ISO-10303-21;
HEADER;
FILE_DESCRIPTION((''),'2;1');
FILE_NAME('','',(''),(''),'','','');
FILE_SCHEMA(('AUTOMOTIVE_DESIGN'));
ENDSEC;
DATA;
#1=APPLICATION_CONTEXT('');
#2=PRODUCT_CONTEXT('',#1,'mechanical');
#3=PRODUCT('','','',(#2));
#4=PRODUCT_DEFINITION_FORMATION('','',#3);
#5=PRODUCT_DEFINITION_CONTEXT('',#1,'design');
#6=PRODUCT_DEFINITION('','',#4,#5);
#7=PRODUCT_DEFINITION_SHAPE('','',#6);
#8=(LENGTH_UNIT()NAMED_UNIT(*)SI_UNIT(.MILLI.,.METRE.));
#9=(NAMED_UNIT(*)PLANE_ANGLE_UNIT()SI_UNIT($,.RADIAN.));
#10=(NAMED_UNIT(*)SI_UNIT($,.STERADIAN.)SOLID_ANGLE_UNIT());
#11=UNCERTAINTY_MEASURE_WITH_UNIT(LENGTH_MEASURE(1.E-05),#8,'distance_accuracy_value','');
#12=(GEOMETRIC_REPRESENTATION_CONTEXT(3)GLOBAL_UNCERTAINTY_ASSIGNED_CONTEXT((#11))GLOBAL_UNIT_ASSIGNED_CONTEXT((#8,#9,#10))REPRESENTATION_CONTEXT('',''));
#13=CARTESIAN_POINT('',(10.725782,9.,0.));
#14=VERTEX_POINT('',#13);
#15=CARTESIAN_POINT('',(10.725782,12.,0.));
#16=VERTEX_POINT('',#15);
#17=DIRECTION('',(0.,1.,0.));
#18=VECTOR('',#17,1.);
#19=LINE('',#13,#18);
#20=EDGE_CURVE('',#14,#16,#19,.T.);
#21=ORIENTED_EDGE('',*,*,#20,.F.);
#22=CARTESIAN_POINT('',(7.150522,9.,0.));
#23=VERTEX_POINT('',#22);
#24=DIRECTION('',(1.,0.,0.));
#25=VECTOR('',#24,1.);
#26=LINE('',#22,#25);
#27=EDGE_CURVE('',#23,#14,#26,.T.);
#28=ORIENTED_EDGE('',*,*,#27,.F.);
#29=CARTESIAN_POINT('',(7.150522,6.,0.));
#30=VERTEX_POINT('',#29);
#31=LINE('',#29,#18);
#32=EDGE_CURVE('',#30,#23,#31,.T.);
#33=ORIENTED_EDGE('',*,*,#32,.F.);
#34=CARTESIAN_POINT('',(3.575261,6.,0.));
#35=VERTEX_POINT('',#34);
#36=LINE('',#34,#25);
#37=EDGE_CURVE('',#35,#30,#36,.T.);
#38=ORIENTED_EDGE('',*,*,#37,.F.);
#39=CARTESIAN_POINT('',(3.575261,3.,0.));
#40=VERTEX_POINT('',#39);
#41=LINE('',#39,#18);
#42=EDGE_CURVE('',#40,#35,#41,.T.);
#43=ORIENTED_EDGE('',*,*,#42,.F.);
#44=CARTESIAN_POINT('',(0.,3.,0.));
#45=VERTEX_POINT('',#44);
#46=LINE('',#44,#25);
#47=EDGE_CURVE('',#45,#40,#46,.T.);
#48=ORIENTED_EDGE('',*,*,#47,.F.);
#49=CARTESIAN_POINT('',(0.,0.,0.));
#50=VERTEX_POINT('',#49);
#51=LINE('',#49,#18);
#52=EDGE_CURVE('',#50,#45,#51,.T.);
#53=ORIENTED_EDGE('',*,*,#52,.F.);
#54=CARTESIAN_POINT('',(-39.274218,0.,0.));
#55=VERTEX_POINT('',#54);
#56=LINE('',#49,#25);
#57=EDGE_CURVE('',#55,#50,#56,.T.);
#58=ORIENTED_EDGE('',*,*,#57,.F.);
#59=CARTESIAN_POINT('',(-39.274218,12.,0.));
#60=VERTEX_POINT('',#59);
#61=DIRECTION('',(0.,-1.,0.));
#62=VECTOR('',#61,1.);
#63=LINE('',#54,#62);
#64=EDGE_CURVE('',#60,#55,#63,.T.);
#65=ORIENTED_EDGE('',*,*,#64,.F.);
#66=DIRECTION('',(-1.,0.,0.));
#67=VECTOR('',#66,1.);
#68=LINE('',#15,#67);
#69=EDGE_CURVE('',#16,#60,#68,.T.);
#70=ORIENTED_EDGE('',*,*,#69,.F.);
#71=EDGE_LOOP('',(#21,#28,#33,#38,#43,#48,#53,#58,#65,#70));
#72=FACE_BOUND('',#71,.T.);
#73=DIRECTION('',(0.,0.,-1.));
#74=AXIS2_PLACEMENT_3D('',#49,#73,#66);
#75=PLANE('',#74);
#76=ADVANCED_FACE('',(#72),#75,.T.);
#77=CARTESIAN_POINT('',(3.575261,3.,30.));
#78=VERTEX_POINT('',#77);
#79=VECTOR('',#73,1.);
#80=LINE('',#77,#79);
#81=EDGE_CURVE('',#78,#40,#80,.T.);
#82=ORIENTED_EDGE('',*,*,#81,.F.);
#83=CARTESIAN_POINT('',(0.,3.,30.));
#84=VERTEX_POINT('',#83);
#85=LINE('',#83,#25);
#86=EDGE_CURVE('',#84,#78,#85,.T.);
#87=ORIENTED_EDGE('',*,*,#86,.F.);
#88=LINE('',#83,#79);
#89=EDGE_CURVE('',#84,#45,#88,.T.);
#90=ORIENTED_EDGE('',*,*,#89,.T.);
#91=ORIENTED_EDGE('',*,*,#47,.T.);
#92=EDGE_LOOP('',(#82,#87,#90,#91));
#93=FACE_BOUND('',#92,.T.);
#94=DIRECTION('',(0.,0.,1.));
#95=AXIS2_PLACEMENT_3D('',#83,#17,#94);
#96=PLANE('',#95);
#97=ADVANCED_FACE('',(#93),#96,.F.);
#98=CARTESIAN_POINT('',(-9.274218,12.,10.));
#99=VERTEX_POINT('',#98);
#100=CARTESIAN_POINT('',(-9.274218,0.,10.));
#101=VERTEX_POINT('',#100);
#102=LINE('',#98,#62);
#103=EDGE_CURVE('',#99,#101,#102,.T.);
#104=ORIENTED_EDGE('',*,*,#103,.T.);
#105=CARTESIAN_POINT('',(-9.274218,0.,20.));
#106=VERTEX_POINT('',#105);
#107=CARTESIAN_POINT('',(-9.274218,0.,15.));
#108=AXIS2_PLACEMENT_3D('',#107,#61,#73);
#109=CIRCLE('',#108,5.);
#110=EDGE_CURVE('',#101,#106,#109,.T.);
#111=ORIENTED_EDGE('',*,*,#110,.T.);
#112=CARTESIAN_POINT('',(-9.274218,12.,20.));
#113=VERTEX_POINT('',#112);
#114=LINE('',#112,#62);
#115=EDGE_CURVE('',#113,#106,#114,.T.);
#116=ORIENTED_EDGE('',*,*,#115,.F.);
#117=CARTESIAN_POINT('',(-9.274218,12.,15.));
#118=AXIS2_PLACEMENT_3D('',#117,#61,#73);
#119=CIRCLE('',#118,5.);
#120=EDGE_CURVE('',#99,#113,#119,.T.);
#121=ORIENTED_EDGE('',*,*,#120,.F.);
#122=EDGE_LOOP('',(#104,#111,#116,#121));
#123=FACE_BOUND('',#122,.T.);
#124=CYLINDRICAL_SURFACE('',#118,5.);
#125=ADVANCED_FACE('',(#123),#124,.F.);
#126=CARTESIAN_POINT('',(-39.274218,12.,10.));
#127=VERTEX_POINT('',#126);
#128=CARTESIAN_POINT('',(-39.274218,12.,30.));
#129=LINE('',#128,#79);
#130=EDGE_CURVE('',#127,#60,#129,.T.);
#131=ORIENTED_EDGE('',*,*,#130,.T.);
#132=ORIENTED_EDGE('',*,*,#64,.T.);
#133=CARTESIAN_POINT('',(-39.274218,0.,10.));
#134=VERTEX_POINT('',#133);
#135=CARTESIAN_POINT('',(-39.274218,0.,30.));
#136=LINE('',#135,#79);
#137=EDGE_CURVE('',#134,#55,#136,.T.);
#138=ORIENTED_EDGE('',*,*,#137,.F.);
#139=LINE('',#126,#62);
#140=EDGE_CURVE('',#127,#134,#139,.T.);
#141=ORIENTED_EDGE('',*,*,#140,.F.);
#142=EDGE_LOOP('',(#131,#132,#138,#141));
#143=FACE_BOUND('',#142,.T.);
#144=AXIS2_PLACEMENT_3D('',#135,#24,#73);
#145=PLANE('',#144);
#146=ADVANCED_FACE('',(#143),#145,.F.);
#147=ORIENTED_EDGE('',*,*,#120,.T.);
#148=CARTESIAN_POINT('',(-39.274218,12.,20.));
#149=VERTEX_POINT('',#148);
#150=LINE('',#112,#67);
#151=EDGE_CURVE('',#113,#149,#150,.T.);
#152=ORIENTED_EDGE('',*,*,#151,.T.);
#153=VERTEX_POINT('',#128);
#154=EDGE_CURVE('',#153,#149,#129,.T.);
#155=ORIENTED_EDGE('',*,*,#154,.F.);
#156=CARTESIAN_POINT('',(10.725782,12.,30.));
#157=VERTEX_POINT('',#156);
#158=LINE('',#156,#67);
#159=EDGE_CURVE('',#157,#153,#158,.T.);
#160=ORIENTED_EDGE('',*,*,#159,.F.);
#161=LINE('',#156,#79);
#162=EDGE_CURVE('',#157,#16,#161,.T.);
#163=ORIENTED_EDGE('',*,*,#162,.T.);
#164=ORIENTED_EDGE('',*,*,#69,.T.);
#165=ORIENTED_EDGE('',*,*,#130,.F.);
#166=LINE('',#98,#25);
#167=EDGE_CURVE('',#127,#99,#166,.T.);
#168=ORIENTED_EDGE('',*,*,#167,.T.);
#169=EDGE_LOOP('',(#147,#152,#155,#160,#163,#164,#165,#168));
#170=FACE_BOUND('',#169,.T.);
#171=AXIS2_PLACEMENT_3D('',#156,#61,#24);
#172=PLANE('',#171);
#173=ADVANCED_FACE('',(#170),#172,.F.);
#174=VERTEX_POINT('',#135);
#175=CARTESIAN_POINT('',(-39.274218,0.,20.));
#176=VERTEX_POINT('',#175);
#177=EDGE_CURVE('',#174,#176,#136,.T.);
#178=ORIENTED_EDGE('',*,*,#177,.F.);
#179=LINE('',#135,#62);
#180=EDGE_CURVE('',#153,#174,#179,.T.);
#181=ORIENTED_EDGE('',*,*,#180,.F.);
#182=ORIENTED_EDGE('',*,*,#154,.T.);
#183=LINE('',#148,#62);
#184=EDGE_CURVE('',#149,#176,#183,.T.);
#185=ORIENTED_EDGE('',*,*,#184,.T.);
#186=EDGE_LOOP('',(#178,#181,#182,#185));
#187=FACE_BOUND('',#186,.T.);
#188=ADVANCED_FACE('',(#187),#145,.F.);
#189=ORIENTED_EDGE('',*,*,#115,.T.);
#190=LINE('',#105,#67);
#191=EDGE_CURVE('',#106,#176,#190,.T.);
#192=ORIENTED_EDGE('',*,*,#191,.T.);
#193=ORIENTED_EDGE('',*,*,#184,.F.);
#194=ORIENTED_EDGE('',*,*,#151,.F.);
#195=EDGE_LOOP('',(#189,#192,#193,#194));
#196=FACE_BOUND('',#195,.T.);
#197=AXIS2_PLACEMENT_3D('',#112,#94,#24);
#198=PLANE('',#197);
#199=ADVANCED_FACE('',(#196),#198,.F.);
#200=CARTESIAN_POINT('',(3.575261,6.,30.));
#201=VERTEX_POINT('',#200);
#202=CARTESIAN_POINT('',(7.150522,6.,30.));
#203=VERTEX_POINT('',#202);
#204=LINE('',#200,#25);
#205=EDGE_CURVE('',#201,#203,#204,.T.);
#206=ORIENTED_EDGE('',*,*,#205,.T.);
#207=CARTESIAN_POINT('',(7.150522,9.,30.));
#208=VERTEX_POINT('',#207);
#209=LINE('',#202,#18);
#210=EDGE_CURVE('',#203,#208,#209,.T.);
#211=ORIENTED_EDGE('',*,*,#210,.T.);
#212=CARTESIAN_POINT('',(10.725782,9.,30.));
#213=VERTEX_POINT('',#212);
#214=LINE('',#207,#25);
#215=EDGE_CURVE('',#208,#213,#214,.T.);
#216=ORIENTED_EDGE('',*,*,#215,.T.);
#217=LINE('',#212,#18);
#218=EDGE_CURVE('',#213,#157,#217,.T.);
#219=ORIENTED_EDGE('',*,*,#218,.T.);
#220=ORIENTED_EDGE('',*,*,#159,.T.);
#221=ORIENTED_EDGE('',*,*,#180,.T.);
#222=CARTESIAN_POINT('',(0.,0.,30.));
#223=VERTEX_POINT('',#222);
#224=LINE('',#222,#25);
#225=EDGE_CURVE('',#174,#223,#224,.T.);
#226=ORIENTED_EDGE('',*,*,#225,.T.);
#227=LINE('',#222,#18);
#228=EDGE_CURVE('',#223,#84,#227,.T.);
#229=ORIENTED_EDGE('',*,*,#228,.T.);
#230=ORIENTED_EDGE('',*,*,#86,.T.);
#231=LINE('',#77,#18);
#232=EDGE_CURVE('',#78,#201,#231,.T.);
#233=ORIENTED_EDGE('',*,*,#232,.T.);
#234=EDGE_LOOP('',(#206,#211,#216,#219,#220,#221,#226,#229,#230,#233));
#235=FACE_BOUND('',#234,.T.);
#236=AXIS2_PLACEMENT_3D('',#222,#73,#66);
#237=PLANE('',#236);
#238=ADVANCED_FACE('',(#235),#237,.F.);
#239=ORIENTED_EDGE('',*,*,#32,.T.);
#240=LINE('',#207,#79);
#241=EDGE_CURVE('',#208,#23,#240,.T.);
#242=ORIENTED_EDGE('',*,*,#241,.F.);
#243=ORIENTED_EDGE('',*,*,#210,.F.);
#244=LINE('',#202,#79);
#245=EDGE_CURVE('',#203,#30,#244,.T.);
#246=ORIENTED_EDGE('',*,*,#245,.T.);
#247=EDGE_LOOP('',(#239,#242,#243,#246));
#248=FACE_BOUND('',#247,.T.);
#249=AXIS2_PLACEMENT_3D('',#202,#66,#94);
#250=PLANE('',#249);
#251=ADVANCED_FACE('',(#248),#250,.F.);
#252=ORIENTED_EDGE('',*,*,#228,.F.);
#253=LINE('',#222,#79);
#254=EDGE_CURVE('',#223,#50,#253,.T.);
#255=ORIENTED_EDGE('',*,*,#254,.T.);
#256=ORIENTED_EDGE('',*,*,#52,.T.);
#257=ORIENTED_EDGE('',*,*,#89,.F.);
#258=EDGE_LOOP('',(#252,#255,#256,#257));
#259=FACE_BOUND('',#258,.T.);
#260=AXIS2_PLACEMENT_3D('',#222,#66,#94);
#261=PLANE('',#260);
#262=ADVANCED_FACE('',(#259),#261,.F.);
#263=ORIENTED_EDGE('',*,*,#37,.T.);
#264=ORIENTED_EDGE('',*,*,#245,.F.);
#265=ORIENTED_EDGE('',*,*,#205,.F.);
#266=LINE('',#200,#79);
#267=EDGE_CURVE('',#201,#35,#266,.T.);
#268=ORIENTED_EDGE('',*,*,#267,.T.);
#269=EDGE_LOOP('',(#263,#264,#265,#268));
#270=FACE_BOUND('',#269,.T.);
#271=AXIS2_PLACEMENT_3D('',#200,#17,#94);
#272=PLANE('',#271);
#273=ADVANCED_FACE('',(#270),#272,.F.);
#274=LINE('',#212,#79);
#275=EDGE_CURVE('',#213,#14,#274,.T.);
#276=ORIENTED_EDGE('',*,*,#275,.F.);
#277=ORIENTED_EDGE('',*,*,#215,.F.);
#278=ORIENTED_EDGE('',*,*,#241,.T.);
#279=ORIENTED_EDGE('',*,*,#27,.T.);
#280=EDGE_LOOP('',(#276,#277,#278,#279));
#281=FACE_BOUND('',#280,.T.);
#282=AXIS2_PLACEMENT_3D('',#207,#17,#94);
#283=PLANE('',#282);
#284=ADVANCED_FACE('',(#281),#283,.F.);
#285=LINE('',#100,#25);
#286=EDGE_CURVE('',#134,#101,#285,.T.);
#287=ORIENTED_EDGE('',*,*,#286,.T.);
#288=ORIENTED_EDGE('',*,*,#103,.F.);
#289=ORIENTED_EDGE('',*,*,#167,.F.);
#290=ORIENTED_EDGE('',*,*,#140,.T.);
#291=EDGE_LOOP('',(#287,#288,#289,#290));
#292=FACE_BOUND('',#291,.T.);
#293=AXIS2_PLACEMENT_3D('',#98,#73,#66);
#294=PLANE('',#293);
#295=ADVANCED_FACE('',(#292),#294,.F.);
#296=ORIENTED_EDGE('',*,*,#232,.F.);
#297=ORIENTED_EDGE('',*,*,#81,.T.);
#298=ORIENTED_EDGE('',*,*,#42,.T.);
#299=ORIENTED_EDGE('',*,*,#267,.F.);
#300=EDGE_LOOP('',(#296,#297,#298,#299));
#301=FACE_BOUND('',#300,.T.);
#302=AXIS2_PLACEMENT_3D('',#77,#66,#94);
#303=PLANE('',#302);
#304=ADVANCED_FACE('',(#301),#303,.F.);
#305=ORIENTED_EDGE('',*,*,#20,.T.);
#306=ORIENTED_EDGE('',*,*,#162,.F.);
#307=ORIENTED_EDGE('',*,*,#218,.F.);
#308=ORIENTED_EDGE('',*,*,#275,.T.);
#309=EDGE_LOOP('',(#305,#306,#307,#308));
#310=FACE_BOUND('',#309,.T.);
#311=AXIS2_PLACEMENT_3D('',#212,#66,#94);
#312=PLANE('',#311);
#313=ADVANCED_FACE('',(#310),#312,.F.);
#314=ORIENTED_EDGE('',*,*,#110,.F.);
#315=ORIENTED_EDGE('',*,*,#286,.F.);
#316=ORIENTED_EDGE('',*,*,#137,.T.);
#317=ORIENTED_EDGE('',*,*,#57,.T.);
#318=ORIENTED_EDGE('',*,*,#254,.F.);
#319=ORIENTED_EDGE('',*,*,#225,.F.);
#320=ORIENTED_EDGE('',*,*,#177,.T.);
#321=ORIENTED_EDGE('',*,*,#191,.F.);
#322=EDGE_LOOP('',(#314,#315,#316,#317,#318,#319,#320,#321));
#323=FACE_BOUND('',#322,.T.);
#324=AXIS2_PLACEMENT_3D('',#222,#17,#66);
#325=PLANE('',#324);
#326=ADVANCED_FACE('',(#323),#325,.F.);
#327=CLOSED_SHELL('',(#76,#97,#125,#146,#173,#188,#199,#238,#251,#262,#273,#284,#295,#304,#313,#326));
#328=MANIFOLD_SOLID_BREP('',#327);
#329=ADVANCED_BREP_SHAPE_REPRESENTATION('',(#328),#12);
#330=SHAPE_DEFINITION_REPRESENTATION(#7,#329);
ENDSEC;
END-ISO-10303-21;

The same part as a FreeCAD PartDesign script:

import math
import FreeCAD as App
import Part
import Sketcher
from FreeCAD import Vector


def add_polygon(sketch, points):
    """Adds a closed chain of lines whose ends are joined by coincident constraints."""
    first, n = sketch.GeometryCount, len(points)
    for a, b in zip(points, points[1:] + points[:1]):
        sketch.addGeometry(Part.LineSegment(App.Vector(*a, 0), App.Vector(*b, 0)), False)
    for i in range(n):
        sketch.addConstraint(Sketcher.Constraint("Coincident", first + i, 2, first + (i + 1) % n, 1))

doc = App.newDocument("Part")
body = doc.addObject("PartDesign::Body", "Body")

sketch1 = body.newObject("Sketcher::SketchObject", "Sketch")
sketch1.AttachmentSupport = (doc.getObject("XY_Plane"), [""])
sketch1.MapMode = "FlatFace"
add_polygon(sketch1, [(-39.3, 0), (0, 0), (0, 3), (3.6, 3), (3.6, 6), (7.2, 6), (7.2, 9), (10.7, 9), (10.7, 12), (-39.3, 12)])
sketch1.addConstraint(Sketcher.Constraint("Horizontal", 0))
sketch1.addConstraint(Sketcher.Constraint("Vertical", 1))
sketch1.addConstraint(Sketcher.Constraint("Horizontal", 2))
sketch1.addConstraint(Sketcher.Constraint("Vertical", 3))
sketch1.addConstraint(Sketcher.Constraint("Horizontal", 4))
sketch1.addConstraint(Sketcher.Constraint("Vertical", 5))
sketch1.addConstraint(Sketcher.Constraint("Horizontal", 6))
sketch1.addConstraint(Sketcher.Constraint("Vertical", 7))
sketch1.addConstraint(Sketcher.Constraint("Horizontal", 8))
sketch1.addConstraint(Sketcher.Constraint("Vertical", 9))
sketch1.addConstraint(Sketcher.Constraint("Coincident", 0, 2, -1, 1))
sketch1.addConstraint(Sketcher.Constraint("Equal", 2, 4))
sketch1.addConstraint(Sketcher.Constraint("Equal", 4, 6))
sketch1.addConstraint(Sketcher.Constraint("Equal", 1, 3))
sketch1.addConstraint(Sketcher.Constraint("Equal", 3, 5))
sketch1.addConstraint(Sketcher.Constraint("Equal", 5, 7))
sketch1.addConstraint(Sketcher.Constraint("DistanceX", 8, 2, 8, 1, 50.0))
sketch1.addConstraint(Sketcher.Constraint("DistanceY", 1, 1, 1, 2, 3.0))
sketch1.addConstraint(Sketcher.Constraint("DistanceX", 2, 1, 2, 2, 3.575261))
pad1 = body.newObject("PartDesign::Pad", "Pad")
pad1.Profile = sketch1
pad1.Length = 30

sketch2 = body.newObject("Sketcher::SketchObject", "Sketch001")
sketch2.AttachmentSupport = (doc.getObject("XZ_Plane"), [""])
sketch2.MapMode = "FlatFace"
sketch2.addGeometry(Part.LineSegment(Vector(-39, 10, 0), Vector(-9, 10, 0)), False)
sketch2.addGeometry(Part.ArcOfCircle(Part.Circle(Vector(-9, 15, 0), Vector(0, 0, 1), 5), math.radians(-90), math.radians(90)), False)
sketch2.addGeometry(Part.LineSegment(Vector(-9, 20, 0), Vector(-39, 20, 0)), False)
sketch2.addGeometry(Part.LineSegment(Vector(-39, 20, 0), Vector(-39, 10, 0)), False)
sketch2.addConstraint(Sketcher.Constraint("Tangent", 0, 2, 1, 1))
sketch2.addConstraint(Sketcher.Constraint("Tangent", 1, 2, 2, 1))
sketch2.addConstraint(Sketcher.Constraint("Coincident", 2, 2, 3, 1))
sketch2.addConstraint(Sketcher.Constraint("Coincident", 3, 2, 0, 1))
sketch2.addConstraint(Sketcher.Constraint("Horizontal", 0))
sketch2.addConstraint(Sketcher.Constraint("Horizontal", 2))
sketch2.addConstraint(Sketcher.Constraint("Vertical", 3))
sketch2.addConstraint(Sketcher.Constraint("Radius", 1, 5.0))
sketch2.addConstraint(Sketcher.Constraint("DistanceX", 0, 1, 0, 2, 30.0))
sketch2.addConstraint(Sketcher.Constraint("DistanceY", -1, 1, 1, 3, 15.0))
sketch2.addConstraint(Sketcher.Constraint("DistanceX", 1, 3, -1, 1, 9.274218))
pocket1 = body.newObject("PartDesign::Pocket", "Pocket")
pocket1.Profile = sketch2
pocket1.Type = "ThroughAll"

doc.recompute()
